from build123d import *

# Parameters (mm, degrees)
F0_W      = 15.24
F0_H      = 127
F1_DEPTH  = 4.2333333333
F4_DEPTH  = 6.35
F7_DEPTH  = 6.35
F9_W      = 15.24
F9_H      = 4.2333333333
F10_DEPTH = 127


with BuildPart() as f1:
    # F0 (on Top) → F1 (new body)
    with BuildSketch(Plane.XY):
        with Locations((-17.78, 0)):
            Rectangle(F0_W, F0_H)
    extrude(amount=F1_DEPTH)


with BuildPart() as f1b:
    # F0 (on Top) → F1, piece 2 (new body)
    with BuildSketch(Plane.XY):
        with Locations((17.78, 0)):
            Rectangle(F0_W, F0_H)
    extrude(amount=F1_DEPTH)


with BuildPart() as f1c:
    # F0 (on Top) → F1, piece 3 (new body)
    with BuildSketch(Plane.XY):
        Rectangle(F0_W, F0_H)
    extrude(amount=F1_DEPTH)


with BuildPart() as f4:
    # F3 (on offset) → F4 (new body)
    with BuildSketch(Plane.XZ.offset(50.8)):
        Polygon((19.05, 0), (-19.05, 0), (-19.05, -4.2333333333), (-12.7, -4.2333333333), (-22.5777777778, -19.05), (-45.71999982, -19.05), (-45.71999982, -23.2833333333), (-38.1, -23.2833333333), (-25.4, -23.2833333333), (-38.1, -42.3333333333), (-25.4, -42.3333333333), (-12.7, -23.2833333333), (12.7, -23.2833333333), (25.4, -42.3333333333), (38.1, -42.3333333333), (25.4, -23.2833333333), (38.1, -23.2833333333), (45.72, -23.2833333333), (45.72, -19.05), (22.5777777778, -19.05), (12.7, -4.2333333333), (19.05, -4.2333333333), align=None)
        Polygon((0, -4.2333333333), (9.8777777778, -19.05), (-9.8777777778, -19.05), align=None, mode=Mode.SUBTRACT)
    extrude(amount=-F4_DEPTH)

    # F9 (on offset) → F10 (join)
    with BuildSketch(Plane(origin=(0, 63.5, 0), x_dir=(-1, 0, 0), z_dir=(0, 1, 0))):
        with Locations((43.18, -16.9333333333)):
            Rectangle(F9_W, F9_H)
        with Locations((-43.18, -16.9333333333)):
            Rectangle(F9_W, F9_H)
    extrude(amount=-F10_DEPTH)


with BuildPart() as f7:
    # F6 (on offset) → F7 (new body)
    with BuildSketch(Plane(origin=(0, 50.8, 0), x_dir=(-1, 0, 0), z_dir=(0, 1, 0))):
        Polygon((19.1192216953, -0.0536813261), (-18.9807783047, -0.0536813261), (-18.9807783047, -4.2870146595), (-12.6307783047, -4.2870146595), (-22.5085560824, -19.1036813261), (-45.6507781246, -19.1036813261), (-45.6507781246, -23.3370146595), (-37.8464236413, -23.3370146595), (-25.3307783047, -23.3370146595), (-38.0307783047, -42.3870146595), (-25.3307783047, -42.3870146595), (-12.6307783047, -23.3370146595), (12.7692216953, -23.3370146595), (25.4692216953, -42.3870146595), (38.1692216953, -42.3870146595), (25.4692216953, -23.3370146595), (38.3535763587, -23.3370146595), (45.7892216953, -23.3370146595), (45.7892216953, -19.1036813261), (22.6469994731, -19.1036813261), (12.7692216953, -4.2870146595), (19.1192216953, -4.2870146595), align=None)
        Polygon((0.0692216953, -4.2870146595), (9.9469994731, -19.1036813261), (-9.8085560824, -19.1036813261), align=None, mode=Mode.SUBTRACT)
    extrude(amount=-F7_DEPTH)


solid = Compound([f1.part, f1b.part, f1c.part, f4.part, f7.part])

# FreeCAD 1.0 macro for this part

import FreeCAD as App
import Part
import Sketcher

V = App.Vector
Q = App.Units.Quantity

doc = App.newDocument("Part")
body = doc.addObject("PartDesign::Body", "Body")

sketch1 = doc.addObject("Sketcher::SketchObject", "Sketch")
body.addObject(sketch1)
sketch1.AttachmentSupport = (doc.XY_Plane, [""])
sketch1.MapMode = "FlatFace"
sketch1.addGeometry([
    Part.LineSegment(V(-25, 64, 0), V(-25, -64, 0)),
    Part.LineSegment(V(-25, -64, 0), V(-10, -64, 0)),
    Part.LineSegment(V(-10, -64, 0), V(-10, 64, 0)),
    Part.LineSegment(V(-10, 64, 0), V(-25, 64, 0)),
], False)
sketch1.addConstraint([
    Sketcher.Constraint("Coincident", 0, 2, 1, 1),
    Sketcher.Constraint("Coincident", 1, 2, 2, 1),
    Sketcher.Constraint("Coincident", 2, 2, 3, 1),
    Sketcher.Constraint("Coincident", 3, 2, 0, 1),
    Sketcher.Constraint("Vertical", 0),
    Sketcher.Constraint("Horizontal", 1),
    Sketcher.Constraint("Vertical", 2),
    Sketcher.Constraint("Horizontal", 3),
    Sketcher.Constraint("DistanceY", 0, 2, 0, 1, Q("5 in")),
    Sketcher.Constraint("DistanceX", 1, 1, 1, 2, Q("0.6 in")),
    Sketcher.Constraint("DistanceX", 0, 2, -1, 1, Q("1 in")),
    Sketcher.Constraint("DistanceY", 0, 2, -1, 1, Q("2.5 in")),
])
pad1 = doc.addObject("PartDesign::Pad", "Pad")
body.addObject(pad1)
pad1.Profile = sketch1
pad1.Length = 4.233333
body2 = doc.addObject("PartDesign::Body", "Body001")

sketch2 = doc.addObject("Sketcher::SketchObject", "Sketch001")
body2.addObject(sketch2)
sketch2.AttachmentSupport = (doc.getObject("XY_Plane001"), [""])
sketch2.MapMode = "FlatFace"
sketch2.addGeometry([
    Part.LineSegment(V(10, 64, 0), V(10, -64, 0)),
    Part.LineSegment(V(10, -64, 0), V(25, -64, 0)),
    Part.LineSegment(V(25, -64, 0), V(25, 64, 0)),
    Part.LineSegment(V(25, 64, 0), V(10, 64, 0)),
], False)
sketch2.addConstraint([
    Sketcher.Constraint("Coincident", 0, 2, 1, 1),
    Sketcher.Constraint("Coincident", 1, 2, 2, 1),
    Sketcher.Constraint("Coincident", 2, 2, 3, 1),
    Sketcher.Constraint("Coincident", 3, 2, 0, 1),
    Sketcher.Constraint("Vertical", 0),
    Sketcher.Constraint("Horizontal", 1),
    Sketcher.Constraint("Vertical", 2),
    Sketcher.Constraint("Horizontal", 3),
    Sketcher.Constraint("DistanceY", 0, 2, 0, 1, Q("5 in")),
    Sketcher.Constraint("DistanceX", 1, 1, 1, 2, Q("0.6 in")),
    Sketcher.Constraint("DistanceX", -1, 1, 1, 2, Q("1 in")),
    Sketcher.Constraint("DistanceY", 0, 2, -1, 1, Q("2.5 in")),
])
pad2 = doc.addObject("PartDesign::Pad", "Pad001")
body2.addObject(pad2)
pad2.Profile = sketch2
pad2.Length = 4.233333
body3 = doc.addObject("PartDesign::Body", "Body002")

sketch3 = doc.addObject("Sketcher::SketchObject", "Sketch002")
body3.addObject(sketch3)
sketch3.AttachmentSupport = (doc.getObject("XY_Plane002"), [""])
sketch3.MapMode = "FlatFace"
sketch3.addGeometry([
    Part.LineSegment(V(-8, 64, 0), V(-8, -64, 0)),
    Part.LineSegment(V(-8, -64, 0), V(8, -64, 0)),
    Part.LineSegment(V(8, -64, 0), V(8, 64, 0)),
    Part.LineSegment(V(8, 64, 0), V(-8, 64, 0)),
], False)
sketch3.addConstraint([
    Sketcher.Constraint("Coincident", 0, 2, 1, 1),
    Sketcher.Constraint("Coincident", 1, 2, 2, 1),
    Sketcher.Constraint("Coincident", 2, 2, 3, 1),
    Sketcher.Constraint("Coincident", 3, 2, 0, 1),
    Sketcher.Constraint("Vertical", 0),
    Sketcher.Constraint("Horizontal", 1),
    Sketcher.Constraint("Vertical", 2),
    Sketcher.Constraint("Horizontal", 3),
    Sketcher.Constraint("Symmetric", 0, 2, 2, 2, -1, 1),
    Sketcher.Constraint("DistanceY", 0, 2, 0, 1, Q("5 in")),
    Sketcher.Constraint("DistanceX", 1, 1, 1, 2, Q("0.6 in")),
])
pad3 = doc.addObject("PartDesign::Pad", "Pad002")
body3.addObject(pad3)
pad3.Profile = sketch3
pad3.Length = 4.233333
body4 = doc.addObject("PartDesign::Body", "Body003")

sketch4 = doc.addObject("Sketcher::SketchObject", "Sketch003")
body4.addObject(sketch4)
sketch4.AttachmentSupport = (doc.getObject("XZ_Plane003"), [""])
sketch4.MapMode = "FlatFace"
sketch4.AttachmentOffset = App.Placement(V(0, 0, 2 * 25.4), App.Rotation())
sketch4.addGeometry([
    Part.LineSegment(V(19.1, 0, 0), V(-19.1, 0, 0)),
    Part.LineSegment(V(-19.1, 0, 0), V(-19.1, -4.2, 0)),
    Part.LineSegment(V(-19.1, -4.2, 0), V(-12.7, -4.2, 0)),
    Part.LineSegment(V(-12.7, -4.2, 0), V(-22.6, -19.1, 0)),
    Part.LineSegment(V(-22.6, -19.1, 0), V(-45.7, -19.1, 0)),
    Part.LineSegment(V(-45.7, -19.1, 0), V(-45.7, -23.3, 0)),
    Part.LineSegment(V(-45.7, -23.3, 0), V(-25.4, -23.3, 0)),
    Part.LineSegment(V(-25.4, -23.3, 0), V(-38.1, -42.3, 0)),
    Part.LineSegment(V(-38.1, -42.3, 0), V(-25.4, -42.3, 0)),
    Part.LineSegment(V(-25.4, -42.3, 0), V(-12.7, -23.3, 0)),
    Part.LineSegment(V(-12.7, -23.3, 0), V(12.7, -23.3, 0)),
    Part.LineSegment(V(12.7, -23.3, 0), V(25.4, -42.3, 0)),
    Part.LineSegment(V(25.4, -42.3, 0), V(38.1, -42.3, 0)),
    Part.LineSegment(V(38.1, -42.3, 0), V(25.4, -23.3, 0)),
    Part.LineSegment(V(25.4, -23.3, 0), V(45.7, -23.3, 0)),
    Part.LineSegment(V(45.7, -23.3, 0), V(45.7, -19.1, 0)),
    Part.LineSegment(V(45.7, -19.1, 0), V(22.6, -19.1, 0)),
    Part.LineSegment(V(22.6, -19.1, 0), V(12.7, -4.2, 0)),
    Part.LineSegment(V(12.7, -4.2, 0), V(19.1, -4.2, 0)),
    Part.LineSegment(V(19.1, -4.2, 0), V(19.1, 0, 0)),
    Part.LineSegment(V(-9.9, -19.1, 0), V(0, -4.2, 0)),
    Part.LineSegment(V(0, -4.2, 0), V(9.9, -19.1, 0)),
    Part.LineSegment(V(9.9, -19.1, 0), V(-9.9, -19.1, 0)),
], False)
sketch4.addConstraint([
    Sketcher.Constraint("Coincident", 0, 2, 1, 1),
    Sketcher.Constraint("Coincident", 1, 2, 2, 1),
    Sketcher.Constraint("Coincident", 2, 2, 3, 1),
    Sketcher.Constraint("Coincident", 3, 2, 4, 1),
    Sketcher.Constraint("Coincident", 4, 2, 5, 1),
    Sketcher.Constraint("Coincident", 5, 2, 6, 1),
    Sketcher.Constraint("Coincident", 6, 2, 7, 1),
    Sketcher.Constraint("Coincident", 7, 2, 8, 1),
    Sketcher.Constraint("Coincident", 8, 2, 9, 1),
    Sketcher.Constraint("Coincident", 9, 2, 10, 1),
    Sketcher.Constraint("Coincident", 10, 2, 11, 1),
    Sketcher.Constraint("Coincident", 11, 2, 12, 1),
    Sketcher.Constraint("Coincident", 12, 2, 13, 1),
    Sketcher.Constraint("Coincident", 13, 2, 14, 1),
    Sketcher.Constraint("Coincident", 14, 2, 15, 1),
    Sketcher.Constraint("Coincident", 15, 2, 16, 1),
    Sketcher.Constraint("Coincident", 16, 2, 17, 1),
    Sketcher.Constraint("Coincident", 17, 2, 18, 1),
    Sketcher.Constraint("Coincident", 18, 2, 19, 1),
    Sketcher.Constraint("Coincident", 19, 2, 0, 1),
    Sketcher.Constraint("Coincident", 20, 2, 21, 1),
    Sketcher.Constraint("Coincident", 21, 2, 22, 1),
    Sketcher.Constraint("Coincident", 22, 2, 20, 1),
    Sketcher.Constraint("Horizontal", 0),
    Sketcher.Constraint("Vertical", 1),
    Sketcher.Constraint("Horizontal", 2),
    Sketcher.Constraint("Horizontal", 4),
    Sketcher.Constraint("Vertical", 5),
    Sketcher.Constraint("Horizontal", 6),
    Sketcher.Constraint("Horizontal", 8),
    Sketcher.Constraint("Horizontal", 10),
    Sketcher.Constraint("Horizontal", 12),
    Sketcher.Constraint("Horizontal", 14),
    Sketcher.Constraint("Vertical", 15),
    Sketcher.Constraint("Horizontal", 16),
    Sketcher.Constraint("Horizontal", 18),
    Sketcher.Constraint("Vertical", 19),
    Sketcher.Constraint("Horizontal", 22),
    Sketcher.Constraint("Symmetric", 0, 2, 19, 2, -1, 1),
    Sketcher.Constraint("Symmetric", 8, 2, 11, 2, -2),
    Sketcher.Constraint("Symmetric", 6, 2, 13, 2, -2),
    Sketcher.Constraint("Symmetric", 4, 2, 15, 2, -2),
    Sketcher.Constraint("Symmetric", 2, 2, 17, 2, -2),
    Sketcher.Constraint("PointOnObject", 20, 2, -2),
    Sketcher.Constraint("Parallel", 3, 7),
    Sketcher.Constraint("Parallel", 7, 9),
    Sketcher.Constraint("Parallel", 11, 13),
    Sketcher.Constraint("Parallel", 13, 17),
    Sketcher.Constraint("Parallel", 9, 20),
    Sketcher.Constraint("Parallel", 17, 21),
    Sketcher.Constraint("Horizontal", 6, 2, 9, 2),
    Sketcher.Constraint("Horizontal", 18, 2, 20, 2),
    Sketcher.Constraint("Horizontal", 16, 2, 21, 2),
    Sketcher.Constraint("Vertical", 6, 2, 8, 2),
    Sketcher.Constraint("Vertical", 2, 2, 9, 2),
    Sketcher.Constraint("Vertical", 10, 2, 17, 2),
    Sketcher.Constraint("Equal", 1, 5),
    Sketcher.Constraint("DistanceX", 10, 1, 10, 2, Q("1 in")),
    Sketcher.Constraint("DistanceX", 0, 2, 0, 1, Q("1.5 in")),
    Sketcher.Constraint("DistanceX", 6, 1, 6, 2, Q("0.8 in")),
    Sketcher.Constraint("DistanceX", 8, 1, 8, 2, Q("0.5 in")),
    Sketcher.Constraint("DistanceY", 7, 2, 1, 2, Q("1.5 in")),
    Sketcher.Constraint("DistanceY", 3, 2, -1, 1, Q("0.75 in")),
    Sketcher.Constraint("DistanceX", 4, 2, 4, 1, 23.142222),
])
pad4 = doc.addObject("PartDesign::Pad", "Pad003")
body4.addObject(pad4)
pad4.Profile = sketch4
pad4.Length = Q("0.25 in")
pad4.Reversed = True

sketch5 = doc.addObject("Sketcher::SketchObject", "Sketch004")
body4.addObject(sketch5)
sketch5.AttachmentSupport = (doc.getObject("XZ_Plane003"), [""])
sketch5.MapMode = "FlatFace"
sketch5.AttachmentOffset = App.Placement(V(0, 0, -2.5 * 25.4), App.Rotation())
sketch5.addGeometry([
    Part.LineSegment(V(-35.6, -14.8, 0), V(-35.6, -19.1, 0)),
    Part.LineSegment(V(-35.6, -19.1, 0), V(-50.8, -19.1, 0)),
    Part.LineSegment(V(-50.8, -19.1, 0), V(-50.8, -14.8, 0)),
    Part.LineSegment(V(-50.8, -14.8, 0), V(-35.6, -14.8, 0)),
    Part.LineSegment(V(50.8, -14.8, 0), V(50.8, -19.1, 0)),
    Part.LineSegment(V(50.8, -19.1, 0), V(35.6, -19.1, 0)),
    Part.LineSegment(V(35.6, -19.1, 0), V(35.6, -14.8, 0)),
    Part.LineSegment(V(35.6, -14.8, 0), V(50.8, -14.8, 0)),
], False)
sketch5.addConstraint([
    Sketcher.Constraint("Coincident", 0, 2, 1, 1),
    Sketcher.Constraint("Coincident", 1, 2, 2, 1),
    Sketcher.Constraint("Coincident", 2, 2, 3, 1),
    Sketcher.Constraint("Coincident", 3, 2, 0, 1),
    Sketcher.Constraint("Coincident", 4, 2, 5, 1),
    Sketcher.Constraint("Coincident", 5, 2, 6, 1),
    Sketcher.Constraint("Coincident", 6, 2, 7, 1),
    Sketcher.Constraint("Coincident", 7, 2, 4, 1),
    Sketcher.Constraint("Vertical", 0),
    Sketcher.Constraint("Horizontal", 1),
    Sketcher.Constraint("Vertical", 2),
    Sketcher.Constraint("Horizontal", 3),
    Sketcher.Constraint("Vertical", 4),
    Sketcher.Constraint("Horizontal", 5),
    Sketcher.Constraint("Vertical", 6),
    Sketcher.Constraint("Horizontal", 7),
    Sketcher.Constraint("Symmetric", 1, 2, 4, 2, -2),
    Sketcher.Constraint("Symmetric", 3, 2, 6, 2, -2),
    Sketcher.Constraint("DistanceX", 1, 2, 1, 1, Q("0.6 in")),
    Sketcher.Constraint("DistanceX", 1, 2, -1, 1, Q("2 in")),
    Sketcher.Constraint("DistanceY", 0, 2, -1, 1, Q("0.75 in")),
    Sketcher.Constraint("DistanceY", 0, 2, 0, 1, 4.233333),
])
pad5 = doc.addObject("PartDesign::Pad", "Pad004")
body4.addObject(pad5)
pad5.Profile = sketch5
pad5.Length = Q("5 in")
body5 = doc.addObject("PartDesign::Body", "Body004")

sketch6 = doc.addObject("Sketcher::SketchObject", "Sketch005")
body5.addObject(sketch6)
sketch6.AttachmentSupport = (doc.getObject("XZ_Plane004"), [""])
sketch6.MapMode = "FlatFace"
sketch6.AttachmentOffset = App.Placement(V(0, 0, -2 * 25.4), App.Rotation())
sketch6.addGeometry([
    Part.LineSegment(V(-19.1, -0.1, 0), V(19, -0.1, 0)),
    Part.LineSegment(V(19, -0.1, 0), V(19, -4.3, 0)),
    Part.LineSegment(V(19, -4.3, 0), V(12.6, -4.3, 0)),
    Part.LineSegment(V(12.6, -4.3, 0), V(22.5, -19.1, 0)),
    Part.LineSegment(V(22.5, -19.1, 0), V(45.7, -19.1, 0)),
    Part.LineSegment(V(45.7, -19.1, 0), V(45.7, -23.3, 0)),
    Part.LineSegment(V(45.7, -23.3, 0), V(25.3, -23.3, 0)),
    Part.LineSegment(V(25.3, -23.3, 0), V(38, -42.4, 0)),
    Part.LineSegment(V(38, -42.4, 0), V(25.3, -42.4, 0)),
    Part.LineSegment(V(25.3, -42.4, 0), V(12.6, -23.3, 0)),
    Part.LineSegment(V(12.6, -23.3, 0), V(-12.8, -23.3, 0)),
    Part.LineSegment(V(-12.8, -23.3, 0), V(-25.5, -42.4, 0)),
    Part.LineSegment(V(-25.5, -42.4, 0), V(-38.2, -42.4, 0)),
    Part.LineSegment(V(-38.2, -42.4, 0), V(-25.5, -23.3, 0)),
    Part.LineSegment(V(-25.5, -23.3, 0), V(-45.8, -23.3, 0)),
    Part.LineSegment(V(-45.8, -23.3, 0), V(-45.8, -19.1, 0)),
    Part.LineSegment(V(-45.8, -19.1, 0), V(-22.6, -19.1, 0)),
    Part.LineSegment(V(-22.6, -19.1, 0), V(-12.8, -4.3, 0)),
    Part.LineSegment(V(-12.8, -4.3, 0), V(-19.1, -4.3, 0)),
    Part.LineSegment(V(-19.1, -4.3, 0), V(-19.1, -0.1, 0)),
    Part.LineSegment(V(9.8, -19.1, 0), V(-0.1, -4.3, 0)),
    Part.LineSegment(V(-0.1, -4.3, 0), V(-9.9, -19.1, 0)),
    Part.LineSegment(V(-9.9, -19.1, 0), V(9.8, -19.1, 0)),
], False)
sketch6.addConstraint([
    Sketcher.Constraint("Coincident", 0, 2, 1, 1),
    Sketcher.Constraint("Coincident", 1, 2, 2, 1),
    Sketcher.Constraint("Coincident", 2, 2, 3, 1),
    Sketcher.Constraint("Coincident", 3, 2, 4, 1),
    Sketcher.Constraint("Coincident", 4, 2, 5, 1),
    Sketcher.Constraint("Coincident", 5, 2, 6, 1),
    Sketcher.Constraint("Coincident", 6, 2, 7, 1),
    Sketcher.Constraint("Coincident", 7, 2, 8, 1),
    Sketcher.Constraint("Coincident", 8, 2, 9, 1),
    Sketcher.Constraint("Coincident", 9, 2, 10, 1),
    Sketcher.Constraint("Coincident", 10, 2, 11, 1),
    Sketcher.Constraint("Coincident", 11, 2, 12, 1),
    Sketcher.Constraint("Coincident", 12, 2, 13, 1),
    Sketcher.Constraint("Coincident", 13, 2, 14, 1),
    Sketcher.Constraint("Coincident", 14, 2, 15, 1),
    Sketcher.Constraint("Coincident", 15, 2, 16, 1),
    Sketcher.Constraint("Coincident", 16, 2, 17, 1),
    Sketcher.Constraint("Coincident", 17, 2, 18, 1),
    Sketcher.Constraint("Coincident", 18, 2, 19, 1),
    Sketcher.Constraint("Coincident", 19, 2, 0, 1),
    Sketcher.Constraint("Coincident", 20, 2, 21, 1),
    Sketcher.Constraint("Coincident", 21, 2, 22, 1),
    Sketcher.Constraint("Coincident", 22, 2, 20, 1),
    Sketcher.Constraint("Horizontal", 0),
    Sketcher.Constraint("Vertical", 1),
    Sketcher.Constraint("Horizontal", 2),
    Sketcher.Constraint("Horizontal", 4),
    Sketcher.Constraint("Vertical", 5),
    Sketcher.Constraint("Horizontal", 6),
    Sketcher.Constraint("Horizontal", 8),
    Sketcher.Constraint("Horizontal", 10),
    Sketcher.Constraint("Horizontal", 12),
    Sketcher.Constraint("Horizontal", 14),
    Sketcher.Constraint("Vertical", 15),
    Sketcher.Constraint("Horizontal", 16),
    Sketcher.Constraint("Horizontal", 18),
    Sketcher.Constraint("Vertical", 19),
    Sketcher.Constraint("Horizontal", 22),
    Sketcher.Constraint("Parallel", 3, 7),
    Sketcher.Constraint("Parallel", 7, 9),
    Sketcher.Constraint("Parallel", 11, 13),
    Sketcher.Constraint("Parallel", 13, 17),
    Sketcher.Constraint("Parallel", 9, 20),
    Sketcher.Constraint("Parallel", 17, 21),
    Sketcher.Constraint("Horizontal", 6, 2, 9, 2),
    Sketcher.Constraint("Horizontal", 8, 2, 11, 2),
    Sketcher.Constraint("Horizontal", 10, 2, 13, 2),
    Sketcher.Constraint("Horizontal", 4, 2, 15, 2),
    Sketcher.Constraint("Horizontal", 2, 2, 17, 2),
    Sketcher.Constraint("Horizontal", 18, 2, 20, 2),
    Sketcher.Constraint("Horizontal", 16, 2, 21, 2),
    Sketcher.Constraint("Vertical", 6, 2, 8, 2),
    Sketcher.Constraint("Vertical", 2, 2, 9, 2),
    Sketcher.Constraint("Vertical", 11, 2, 13, 2),
    Sketcher.Constraint("Vertical", 10, 2, 17, 2),
    Sketcher.Constraint("Equal", 8, 12),
    Sketcher.Constraint("Equal", 6, 14),
    Sketcher.Constraint("Equal", 2, 18),
    Sketcher.Constraint("Equal", 1, 5),
    Sketcher.Constraint("DistanceX", 10, 2, 10, 1, Q("1 in")),
    Sketcher.Constraint("DistanceX", 0, 1, 0, 2, Q("1.5 in")),
    Sketcher.Constraint("DistanceX", 6, 2, 6, 1, Q("0.8 in")),
    Sketcher.Constraint("DistanceX", 8, 2, 8, 1, Q("0.5 in")),
    Sketcher.Constraint("DistanceY", 7, 2, 1, 2, Q("1.5 in")),
    Sketcher.Constraint("DistanceX", 20, 2, 2, 2, Q("0.5 in")),
    Sketcher.Constraint("DistanceY", 3, 2, 0, 2, Q("0.75 in")),
    Sketcher.Constraint("DistanceX", 16, 2, -1, 1, 22.646999),
    Sketcher.Constraint("DistanceX", 4, 1, 4, 2, 23.142222),
    Sketcher.Constraint("DistanceY", 0, 2, -1, 1, 0.053681),
])
pad6 = doc.addObject("PartDesign::Pad", "Pad005")
body5.addObject(pad6)
pad6.Profile = sketch6
pad6.Length = Q("0.25 in")

doc.recompute()
